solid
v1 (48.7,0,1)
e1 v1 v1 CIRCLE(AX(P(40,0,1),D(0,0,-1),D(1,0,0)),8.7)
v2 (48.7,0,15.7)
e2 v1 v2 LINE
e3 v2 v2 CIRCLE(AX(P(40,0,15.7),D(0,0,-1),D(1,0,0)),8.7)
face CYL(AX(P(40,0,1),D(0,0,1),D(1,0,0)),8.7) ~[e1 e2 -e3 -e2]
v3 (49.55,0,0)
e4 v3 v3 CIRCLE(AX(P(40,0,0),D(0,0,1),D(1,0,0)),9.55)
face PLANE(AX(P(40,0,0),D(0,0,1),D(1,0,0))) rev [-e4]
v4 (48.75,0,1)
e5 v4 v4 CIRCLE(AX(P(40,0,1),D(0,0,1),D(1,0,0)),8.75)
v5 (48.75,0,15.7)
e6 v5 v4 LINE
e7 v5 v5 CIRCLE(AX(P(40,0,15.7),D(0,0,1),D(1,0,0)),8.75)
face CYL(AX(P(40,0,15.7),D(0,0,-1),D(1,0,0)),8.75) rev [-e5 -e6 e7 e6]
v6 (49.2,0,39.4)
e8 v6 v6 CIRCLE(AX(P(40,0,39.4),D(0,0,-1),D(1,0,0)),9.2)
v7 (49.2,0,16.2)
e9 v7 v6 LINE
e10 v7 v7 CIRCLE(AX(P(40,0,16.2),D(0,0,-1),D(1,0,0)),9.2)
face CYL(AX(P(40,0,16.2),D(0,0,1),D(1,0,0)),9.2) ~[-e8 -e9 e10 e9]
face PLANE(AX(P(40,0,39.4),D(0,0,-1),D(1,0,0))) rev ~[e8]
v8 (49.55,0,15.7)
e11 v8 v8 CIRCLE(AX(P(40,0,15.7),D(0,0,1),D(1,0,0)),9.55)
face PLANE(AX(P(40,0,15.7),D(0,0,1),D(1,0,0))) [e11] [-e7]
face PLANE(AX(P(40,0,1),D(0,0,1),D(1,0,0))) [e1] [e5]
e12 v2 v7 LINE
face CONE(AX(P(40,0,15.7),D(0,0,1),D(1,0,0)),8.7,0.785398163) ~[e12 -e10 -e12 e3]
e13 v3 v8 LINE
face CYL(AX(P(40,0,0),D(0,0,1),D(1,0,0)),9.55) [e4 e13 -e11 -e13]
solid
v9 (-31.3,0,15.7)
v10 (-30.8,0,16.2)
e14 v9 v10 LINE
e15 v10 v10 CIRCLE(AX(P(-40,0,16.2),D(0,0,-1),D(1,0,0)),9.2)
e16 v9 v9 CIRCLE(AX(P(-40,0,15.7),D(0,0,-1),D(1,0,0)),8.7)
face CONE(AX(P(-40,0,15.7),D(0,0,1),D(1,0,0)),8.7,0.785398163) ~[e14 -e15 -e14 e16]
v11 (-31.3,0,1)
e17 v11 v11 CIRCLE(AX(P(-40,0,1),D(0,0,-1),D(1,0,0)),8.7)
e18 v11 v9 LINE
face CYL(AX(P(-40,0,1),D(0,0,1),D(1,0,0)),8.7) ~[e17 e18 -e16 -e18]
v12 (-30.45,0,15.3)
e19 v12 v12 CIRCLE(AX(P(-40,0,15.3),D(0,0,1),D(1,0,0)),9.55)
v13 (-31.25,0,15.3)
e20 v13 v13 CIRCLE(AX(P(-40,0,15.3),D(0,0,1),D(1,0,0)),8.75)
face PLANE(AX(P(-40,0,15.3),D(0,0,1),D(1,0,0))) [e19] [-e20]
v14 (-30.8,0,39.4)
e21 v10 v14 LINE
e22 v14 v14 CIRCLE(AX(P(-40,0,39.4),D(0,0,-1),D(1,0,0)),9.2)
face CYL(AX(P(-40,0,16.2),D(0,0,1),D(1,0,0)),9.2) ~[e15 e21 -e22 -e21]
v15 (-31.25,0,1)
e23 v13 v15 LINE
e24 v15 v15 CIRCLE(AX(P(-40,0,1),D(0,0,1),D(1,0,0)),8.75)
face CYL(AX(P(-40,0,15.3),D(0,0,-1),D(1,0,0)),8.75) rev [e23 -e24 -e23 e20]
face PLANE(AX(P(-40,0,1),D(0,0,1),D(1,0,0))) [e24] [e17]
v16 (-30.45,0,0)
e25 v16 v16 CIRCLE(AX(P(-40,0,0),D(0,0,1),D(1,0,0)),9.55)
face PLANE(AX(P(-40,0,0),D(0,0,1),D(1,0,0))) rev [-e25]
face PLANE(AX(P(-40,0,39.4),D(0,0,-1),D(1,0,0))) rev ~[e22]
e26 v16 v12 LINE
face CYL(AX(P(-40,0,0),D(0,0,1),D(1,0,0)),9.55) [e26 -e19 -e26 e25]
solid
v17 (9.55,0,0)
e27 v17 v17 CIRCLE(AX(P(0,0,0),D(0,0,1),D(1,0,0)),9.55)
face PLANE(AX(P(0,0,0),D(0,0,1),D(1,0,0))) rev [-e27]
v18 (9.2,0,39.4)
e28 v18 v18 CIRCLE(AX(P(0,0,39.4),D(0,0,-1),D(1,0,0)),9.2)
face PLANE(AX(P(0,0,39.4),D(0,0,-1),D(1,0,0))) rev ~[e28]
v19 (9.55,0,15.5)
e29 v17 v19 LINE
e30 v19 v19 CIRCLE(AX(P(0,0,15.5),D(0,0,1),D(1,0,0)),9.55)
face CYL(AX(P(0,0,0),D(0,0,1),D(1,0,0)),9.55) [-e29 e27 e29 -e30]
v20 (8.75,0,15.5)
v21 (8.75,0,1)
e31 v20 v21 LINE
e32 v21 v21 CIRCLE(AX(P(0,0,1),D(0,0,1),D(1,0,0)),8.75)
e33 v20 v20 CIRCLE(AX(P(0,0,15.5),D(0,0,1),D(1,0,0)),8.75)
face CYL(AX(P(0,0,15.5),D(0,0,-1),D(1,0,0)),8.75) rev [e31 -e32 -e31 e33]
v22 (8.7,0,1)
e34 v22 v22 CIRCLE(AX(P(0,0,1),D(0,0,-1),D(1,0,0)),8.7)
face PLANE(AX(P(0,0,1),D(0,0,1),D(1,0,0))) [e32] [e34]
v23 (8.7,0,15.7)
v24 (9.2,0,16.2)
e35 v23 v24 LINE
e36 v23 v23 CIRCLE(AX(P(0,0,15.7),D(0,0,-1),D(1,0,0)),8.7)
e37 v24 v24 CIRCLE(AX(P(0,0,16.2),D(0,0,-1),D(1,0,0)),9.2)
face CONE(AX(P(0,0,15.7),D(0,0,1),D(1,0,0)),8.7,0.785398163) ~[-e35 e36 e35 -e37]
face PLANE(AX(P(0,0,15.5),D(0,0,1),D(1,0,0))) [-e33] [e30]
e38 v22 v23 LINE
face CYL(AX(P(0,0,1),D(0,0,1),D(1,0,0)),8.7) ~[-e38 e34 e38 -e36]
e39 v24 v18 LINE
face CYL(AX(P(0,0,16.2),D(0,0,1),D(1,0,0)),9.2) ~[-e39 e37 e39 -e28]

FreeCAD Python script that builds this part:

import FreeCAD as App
import Part
import Sketcher
Q = App.Units.Quantity


def add_polygon(sketch, points):
    """Adds a closed chain of lines whose ends are joined by coincident constraints."""
    first, n = sketch.GeometryCount, len(points)
    for a, b in zip(points, points[1:] + points[:1]):
        sketch.addGeometry(Part.LineSegment(App.Vector(*a, 0), App.Vector(*b, 0)), False)
    for i in range(n):
        sketch.addConstraint(Sketcher.Constraint("Coincident", first + i, 2, first + (i + 1) % n, 1))

doc = App.newDocument("Part")
body = doc.addObject("PartDesign::Body", "Body")

# Sketch on XZ plane
sketch1 = body.newObject("Sketcher::SketchObject", "Sketch")
sketch1.AttachmentSupport = (doc.getObject("XZ_Plane"), [""])
sketch1.MapMode = "FlatFace"
add_polygon(sketch1, [(0, 1), (0, 0), (9.6, 0), (9.6, 15.5), (8.8, 15.5), (8.8, 1)])  # lines 0-5
sketch1.addConstraint(Sketcher.Constraint("Vertical", 0))
sketch1.addConstraint(Sketcher.Constraint("Horizontal", 1))
sketch1.addConstraint(Sketcher.Constraint("Vertical", 2))
sketch1.addConstraint(Sketcher.Constraint("Horizontal", 3))
sketch1.addConstraint(Sketcher.Constraint("Vertical", 4))
sketch1.addConstraint(Sketcher.Constraint("Horizontal", 5))
sketch1.addConstraint(Sketcher.Constraint("Coincident", 0, 2, -1, 1))
sketch1.addConstraint(Sketcher.Constraint("DistanceY", 0, 2, 0, 1, 1.0))
sketch1.addConstraint(Sketcher.Constraint("DistanceX", 3, 2, 3, 1, 0.8))
sketch1.addConstraint(Sketcher.Constraint("DistanceY", 2, 1, 2, 2, 15.5))
sketch1.addConstraint(Sketcher.Constraint("DistanceX", 1, 1, 1, 2, 9.55))
revolution = body.newObject("PartDesign::Revolution", "Revolution")
revolution.Profile = sketch1
revolution.ReferenceAxis = (sketch1, ["V_Axis"])
revolution.Angle = 360

# Sketch on XZ plane
sketch2 = body.newObject("Sketcher::SketchObject", "Sketch001")
sketch2.AttachmentSupport = (doc.getObject("XZ_Plane"), [""])
sketch2.MapMode = "FlatFace"
add_polygon(sketch2, [(0, 39.4), (0, 1), (8.7, 1), (8.7, 15.7), (9.2, 16.2), (9.2, 39.4)])  # lines 0-5
sketch2.addConstraint(Sketcher.Constraint("Vertical", 0))
sketch2.addConstraint(Sketcher.Constraint("Horizontal", 1))
sketch2.addConstraint(Sketcher.Constraint("Vertical", 2))
sketch2.addConstraint(Sketcher.Constraint("Vertical", 4))
sketch2.addConstraint(Sketcher.Constraint("Horizontal", 5))
sketch2.addConstraint(Sketcher.Constraint("PointOnObject", 0, 2, -2))
sketch2.addConstraint(Sketcher.Constraint("Angle", 3, Q("45 deg")))
sketch2.addConstraint(Sketcher.Constraint("DistanceX", 1, 1, 1, 2, 8.7))
sketch2.addConstraint(Sketcher.Constraint("DistanceX", 5, 2, 5, 1, 9.2))
sketch2.addConstraint(Sketcher.Constraint("DistanceY", 0, 2, 0, 1, 38.4))
sketch2.addConstraint(Sketcher.Constraint("DistanceY", 2, 1, 2, 2, 14.7))
sketch2.addConstraint(Sketcher.Constraint("DistanceY", -1, 1, 0, 2, 1.0))
revolution2 = body.newObject("PartDesign::Revolution", "Revolution001")
revolution2.Profile = sketch2
revolution2.ReferenceAxis = (sketch2, ["V_Axis"])
revolution2.Angle = 360
body2 = doc.addObject("PartDesign::Body", "Body001")

# Sketch on XZ plane
sketch3 = body2.newObject("Sketcher::SketchObject", "Sketch002")
sketch3.AttachmentSupport = (doc.getObject("XZ_Plane001"), [""])
sketch3.MapMode = "FlatFace"
add_polygon(sketch3, [(-40, 1), (-40, 0), (-30.4, 0), (-30.4, 15.3), (-31.2, 15.3), (-31.2, 1)])  # lines 0-5
sketch3.addGeometry(Part.LineSegment(App.Vector(-40, 0, 0), App.Vector(-40, 15.3, 0)), True)  # axis
sketch3.addConstraint(Sketcher.Constraint("Vertical", 0))
sketch3.addConstraint(Sketcher.Constraint("Horizontal", 1))
sketch3.addConstraint(Sketcher.Constraint("Vertical", 2))
sketch3.addConstraint(Sketcher.Constraint("Horizontal", 3))
sketch3.addConstraint(Sketcher.Constraint("Vertical", 4))
sketch3.addConstraint(Sketcher.Constraint("Horizontal", 5))
sketch3.addConstraint(Sketcher.Constraint("Vertical", 6))
sketch3.addConstraint(Sketcher.Constraint("Coincident", 6, 1, 0, 2))
sketch3.addConstraint(Sketcher.Constraint("PointOnObject", 0, 2, -1))
sketch3.addConstraint(Sketcher.Constraint("Horizontal", 3, 2, 6, 2))
sketch3.addConstraint(Sketcher.Constraint("DistanceY", 0, 2, 0, 1, 1.0))
sketch3.addConstraint(Sketcher.Constraint("DistanceX", 3, 2, 3, 1, 0.8))
sketch3.addConstraint(Sketcher.Constraint("DistanceY", 2, 1, 2, 2, 15.3))
sketch3.addConstraint(Sketcher.Constraint("DistanceX", 0, 2, -1, 1, 40.0))
sketch3.addConstraint(Sketcher.Constraint("DistanceX", 1, 1, 1, 2, 9.55))
revolution3 = body2.newObject("PartDesign::Revolution", "Revolution002")
revolution3.Profile = sketch3
revolution3.ReferenceAxis = (sketch3, ["Axis0"])
revolution3.Angle = 360

# Sketch on XZ plane
sketch4 = body2.newObject("Sketcher::SketchObject", "Sketch003")
sketch4.AttachmentSupport = (doc.getObject("XZ_Plane001"), [""])
sketch4.MapMode = "FlatFace"
add_polygon(sketch4, [(-40, 39.4), (-40, 1), (-31.3, 1), (-31.3, 15.7), (-30.8, 16.2), (-30.8, 39.4)])  # lines 0-5
sketch4.addGeometry(Part.LineSegment(App.Vector(-40, 39.4, 0), App.Vector(-40, 1, 0)), True)  # axis
sketch4.addConstraint(Sketcher.Constraint("Vertical", 0))
sketch4.addConstraint(Sketcher.Constraint("Horizontal", 1))
sketch4.addConstraint(Sketcher.Constraint("Vertical", 2))
sketch4.addConstraint(Sketcher.Constraint("Vertical", 4))
sketch4.addConstraint(Sketcher.Constraint("Horizontal", 5))
sketch4.addConstraint(Sketcher.Constraint("Vertical", 6))
sketch4.addConstraint(Sketcher.Constraint("Coincident", 6, 1, 5, 2))
sketch4.addConstraint(Sketcher.Constraint("Horizontal", 1, 2, 6, 2))
sketch4.addConstraint(Sketcher.Constraint("Angle", 3, Q("45 deg")))
sketch4.addConstraint(Sketcher.Constraint("DistanceX", 1, 1, 1, 2, 8.7))
sketch4.addConstraint(Sketcher.Constraint("DistanceX", 5, 2, 5, 1, 9.2))
sketch4.addConstraint(Sketcher.Constraint("DistanceY", 0, 2, 0, 1, 38.4))
sketch4.addConstraint(Sketcher.Constraint("DistanceY", 2, 1, 2, 2, 14.7))
sketch4.addConstraint(Sketcher.Constraint("DistanceX", 0, 2, -1, 1, 40.0))
sketch4.addConstraint(Sketcher.Constraint("DistanceY", -1, 1, 0, 2, 1.0))
revolution4 = body2.newObject("PartDesign::Revolution", "Revolution003")
revolution4.Profile = sketch4
revolution4.ReferenceAxis = (sketch4, ["Axis0"])
revolution4.Angle = 360
body3 = doc.addObject("PartDesign::Body", "Body002")

# Sketch on XZ plane
sketch5 = body3.newObject("Sketcher::SketchObject", "Sketch004")
sketch5.AttachmentSupport = (doc.getObject("XZ_Plane002"), [""])
sketch5.MapMode = "FlatFace"
add_polygon(sketch5, [(40, 1), (40, 0), (49.5, 0), (49.5, 15.7), (48.8, 15.7), (48.8, 1)])  # lines 0-5
sketch5.addGeometry(Part.LineSegment(App.Vector(40, 0, 0), App.Vector(40, 15.7, 0)), True)  # axis
sketch5.addConstraint(Sketcher.Constraint("Vertical", 0))
sketch5.addConstraint(Sketcher.Constraint("Horizontal", 1))
sketch5.addConstraint(Sketcher.Constraint("Vertical", 2))
sketch5.addConstraint(Sketcher.Constraint("Horizontal", 3))
sketch5.addConstraint(Sketcher.Constraint("Vertical", 4))
sketch5.addConstraint(Sketcher.Constraint("Horizontal", 5))
sketch5.addConstraint(Sketcher.Constraint("Vertical", 6))
sketch5.addConstraint(Sketcher.Constraint("Coincident", 6, 1, 0, 2))
sketch5.addConstraint(Sketcher.Constraint("PointOnObject", 0, 2, -1))
sketch5.addConstraint(Sketcher.Constraint("Horizontal", 3, 2, 6, 2))
sketch5.addConstraint(Sketcher.Constraint("DistanceY", 0, 2, 0, 1, 1.0))
sketch5.addConstraint(Sketcher.Constraint("DistanceX", 3, 2, 3, 1, 0.8))
sketch5.addConstraint(Sketcher.Constraint("DistanceY", 2, 1, 2, 2, 15.7))
sketch5.addConstraint(Sketcher.Constraint("DistanceX", -1, 1, 0, 2, 40.0))
sketch5.addConstraint(Sketcher.Constraint("DistanceX", 1, 1, 1, 2, 9.55))
revolution5 = body3.newObject("PartDesign::Revolution", "Revolution004")
revolution5.Profile = sketch5
revolution5.ReferenceAxis = (sketch5, ["Axis0"])
revolution5.Angle = 360

# Sketch on XZ plane
sketch6 = body3.newObject("Sketcher::SketchObject", "Sketch005")
sketch6.AttachmentSupport = (doc.getObject("XZ_Plane002"), [""])
sketch6.MapMode = "FlatFace"
add_polygon(sketch6, [(40, 39.4), (40, 1), (48.7, 1), (48.7, 15.7), (49.2, 16.2), (49.2, 39.4)])  # lines 0-5
sketch6.addGeometry(Part.LineSegment(App.Vector(40, 39.4, 0), App.Vector(40, 1, 0)), True)  # axis
sketch6.addConstraint(Sketcher.Constraint("Vertical", 0))
sketch6.addConstraint(Sketcher.Constraint("Horizontal", 1))
sketch6.addConstraint(Sketcher.Constraint("Vertical", 2))
sketch6.addConstraint(Sketcher.Constraint("Vertical", 4))
sketch6.addConstraint(Sketcher.Constraint("Horizontal", 5))
sketch6.addConstraint(Sketcher.Constraint("Vertical", 6))
sketch6.addConstraint(Sketcher.Constraint("Coincident", 6, 1, 5, 2))
sketch6.addConstraint(Sketcher.Constraint("Horizontal", 1, 2, 6, 2))
sketch6.addConstraint(Sketcher.Constraint("Angle", 3, Q("45 deg")))
sketch6.addConstraint(Sketcher.Constraint("DistanceX", 1, 1, 1, 2, 8.7))
sketch6.addConstraint(Sketcher.Constraint("DistanceX", 5, 2, 5, 1, 9.2))
sketch6.addConstraint(Sketcher.Constraint("DistanceY", 0, 2, 0, 1, 38.4))
sketch6.addConstraint(Sketcher.Constraint("DistanceY", 2, 1, 2, 2, 14.7))
sketch6.addConstraint(Sketcher.Constraint("DistanceX", -1, 1, 0, 2, 40.0))
sketch6.addConstraint(Sketcher.Constraint("DistanceY", -1, 1, 0, 2, 1.0))
revolution6 = body3.newObject("PartDesign::Revolution", "Revolution005")
revolution6.Profile = sketch6
revolution6.ReferenceAxis = (sketch6, ["Axis0"])
revolution6.Angle = 360

doc.recompute()
